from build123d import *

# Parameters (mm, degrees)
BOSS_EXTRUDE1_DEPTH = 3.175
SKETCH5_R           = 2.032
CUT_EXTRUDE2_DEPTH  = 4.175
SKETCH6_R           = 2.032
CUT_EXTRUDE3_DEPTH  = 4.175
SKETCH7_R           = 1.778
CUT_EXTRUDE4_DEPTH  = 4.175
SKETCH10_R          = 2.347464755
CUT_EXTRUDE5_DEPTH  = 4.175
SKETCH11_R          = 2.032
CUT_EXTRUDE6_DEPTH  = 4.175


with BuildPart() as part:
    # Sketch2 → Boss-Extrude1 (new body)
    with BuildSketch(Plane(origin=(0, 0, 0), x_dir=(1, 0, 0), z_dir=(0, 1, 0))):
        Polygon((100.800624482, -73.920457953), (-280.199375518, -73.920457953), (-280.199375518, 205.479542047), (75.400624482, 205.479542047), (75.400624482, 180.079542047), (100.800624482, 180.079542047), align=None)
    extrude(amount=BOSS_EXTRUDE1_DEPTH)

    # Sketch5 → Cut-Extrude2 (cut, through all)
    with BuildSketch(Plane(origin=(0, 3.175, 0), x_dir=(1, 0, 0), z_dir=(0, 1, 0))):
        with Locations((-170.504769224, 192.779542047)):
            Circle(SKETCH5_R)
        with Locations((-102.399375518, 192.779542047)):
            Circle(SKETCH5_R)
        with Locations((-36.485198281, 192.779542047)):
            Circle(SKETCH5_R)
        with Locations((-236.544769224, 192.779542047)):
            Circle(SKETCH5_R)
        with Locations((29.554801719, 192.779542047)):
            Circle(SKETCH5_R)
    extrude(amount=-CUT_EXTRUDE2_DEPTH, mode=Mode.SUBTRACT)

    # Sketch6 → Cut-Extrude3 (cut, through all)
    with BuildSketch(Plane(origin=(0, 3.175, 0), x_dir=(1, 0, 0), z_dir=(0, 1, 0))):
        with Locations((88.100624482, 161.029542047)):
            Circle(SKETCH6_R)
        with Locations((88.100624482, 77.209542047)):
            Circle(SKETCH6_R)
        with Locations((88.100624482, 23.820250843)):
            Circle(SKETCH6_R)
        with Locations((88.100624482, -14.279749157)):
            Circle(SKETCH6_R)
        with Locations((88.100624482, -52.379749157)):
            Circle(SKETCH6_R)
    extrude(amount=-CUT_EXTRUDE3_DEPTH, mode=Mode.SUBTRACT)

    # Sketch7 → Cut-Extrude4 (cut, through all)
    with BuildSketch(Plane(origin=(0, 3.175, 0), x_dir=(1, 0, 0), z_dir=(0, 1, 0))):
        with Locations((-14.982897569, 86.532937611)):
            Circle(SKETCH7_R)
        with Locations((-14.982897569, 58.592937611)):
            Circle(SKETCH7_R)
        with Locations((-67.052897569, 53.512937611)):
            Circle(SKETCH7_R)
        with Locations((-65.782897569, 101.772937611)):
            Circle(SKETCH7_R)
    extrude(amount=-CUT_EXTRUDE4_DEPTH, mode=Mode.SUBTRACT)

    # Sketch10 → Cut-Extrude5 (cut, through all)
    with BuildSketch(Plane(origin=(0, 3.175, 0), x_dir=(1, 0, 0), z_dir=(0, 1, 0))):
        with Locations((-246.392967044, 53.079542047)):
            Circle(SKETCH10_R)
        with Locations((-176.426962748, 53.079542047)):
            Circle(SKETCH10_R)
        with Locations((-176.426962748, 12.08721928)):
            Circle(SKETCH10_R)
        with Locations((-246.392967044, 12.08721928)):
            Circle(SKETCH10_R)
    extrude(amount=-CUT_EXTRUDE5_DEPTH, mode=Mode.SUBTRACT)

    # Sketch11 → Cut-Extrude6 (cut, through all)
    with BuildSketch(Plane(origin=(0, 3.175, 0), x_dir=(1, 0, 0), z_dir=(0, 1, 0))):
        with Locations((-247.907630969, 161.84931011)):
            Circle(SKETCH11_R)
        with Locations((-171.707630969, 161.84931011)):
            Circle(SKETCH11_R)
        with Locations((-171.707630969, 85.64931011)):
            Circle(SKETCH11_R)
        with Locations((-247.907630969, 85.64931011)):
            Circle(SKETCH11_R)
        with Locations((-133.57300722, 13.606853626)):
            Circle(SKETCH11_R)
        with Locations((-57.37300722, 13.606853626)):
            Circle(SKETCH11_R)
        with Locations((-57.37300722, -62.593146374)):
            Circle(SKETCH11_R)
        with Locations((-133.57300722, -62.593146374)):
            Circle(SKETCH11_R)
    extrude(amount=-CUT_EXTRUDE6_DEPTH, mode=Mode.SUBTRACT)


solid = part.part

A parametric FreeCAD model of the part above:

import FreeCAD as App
import Part
import Sketcher
Q = App.Units.Quantity

doc = App.newDocument("Part")
body = doc.addObject("PartDesign::Body", "Body")

sketch1 = doc.addObject("Sketcher::SketchObject", "Sketch")
body.addObject(sketch1)
sketch1.AttachmentSupport = (doc.XZ_Plane, [""])
sketch1.MapMode = "FlatFace"
sketch1.addGeometry([
    Part.LineSegment(App.Vector(-280.199376, 73.920458, 0), App.Vector(100.800624, 73.920458, 0)),
    Part.LineSegment(App.Vector(100.800624, 73.920458, 0), App.Vector(100.800624, -180.079542, 0)),
    Part.LineSegment(App.Vector(100.800624, -180.079542, 0), App.Vector(75.400624, -180.079542, 0)),
    Part.LineSegment(App.Vector(75.400624, -180.079542, 0), App.Vector(75.400624, -205.479542, 0)),
    Part.LineSegment(App.Vector(75.400624, -205.479542, 0), App.Vector(-280.199376, -205.479542, 0)),
    Part.LineSegment(App.Vector(-280.199376, -205.479542, 0), App.Vector(-280.199376, 73.920458, 0)),
], False)
sketch1.addConstraint([
    Sketcher.Constraint("Coincident", 0, 2, 1, 1),
    Sketcher.Constraint("Coincident", 1, 2, 2, 1),
    Sketcher.Constraint("Coincident", 2, 2, 3, 1),
    Sketcher.Constraint("Coincident", 3, 2, 4, 1),
    Sketcher.Constraint("Coincident", 4, 2, 5, 1),
    Sketcher.Constraint("Coincident", 5, 2, 0, 1),
    Sketcher.Constraint("Horizontal", 0),
    Sketcher.Constraint("Vertical", 1),
    Sketcher.Constraint("Horizontal", 2),
    Sketcher.Constraint("Vertical", 3),
    Sketcher.Constraint("Horizontal", 4),
    Sketcher.Constraint("Vertical", 5),
    Sketcher.Constraint("Equal", 2, 3),
    Sketcher.Constraint("DistanceX", 0, 1, 0, 2, Q("15 in")),
    Sketcher.Constraint("DistanceX", 2, 2, 2, 1, Q("1 in")),
    Sketcher.Constraint("DistanceY", 1, 2, 1, 1, Q("10 in")),
    Sketcher.Constraint("DistanceX", -1, 1, 0, 2, Q("100.800624 mm")),
    Sketcher.Constraint("DistanceY", -1, 1, 0, 2, Q("73.920458 mm")),
])
pad1 = doc.addObject("PartDesign::Pad", "Pad")
body.addObject(pad1)
pad1.Profile = sketch1
pad1.Length = Q("0.125 in")
pad1.Reversed = True

sketch2 = doc.addObject("Sketcher::SketchObject", "Sketch001")
body.addObject(sketch2)
sketch2.AttachmentSupport = (doc.XZ_Plane, [""])
sketch2.MapMode = "FlatFace"
sketch2.AttachmentOffset = App.Placement(App.Vector(0, 0, -0.125 * 25.4), App.Rotation())
sketch2.addGeometry([
    Part.Circle(App.Vector(-170.504769, -192.779542, 0), App.Vector(0, 0, 1), 2.032),
    Part.Circle(App.Vector(-102.399376, -192.779542, 0), App.Vector(0, 0, 1), 2.032),
    Part.Circle(App.Vector(-36.485198, -192.779542, 0), App.Vector(0, 0, 1), 2.032),
    Part.Circle(App.Vector(-236.544769, -192.779542, 0), App.Vector(0, 0, 1), 2.032),
    Part.Circle(App.Vector(29.554802, -192.779542, 0), App.Vector(0, 0, 1), 2.032),
], False)
sketch2.addConstraint([
    Sketcher.Constraint("Equal", 0, 1),
    Sketcher.Constraint("Equal", 1, 2),
    Sketcher.Constraint("Equal", 2, 3),
    Sketcher.Constraint("Equal", 3, 4),
    Sketcher.Constraint("Horizontal", 0, 3, 1, 3),
    Sketcher.Constraint("Horizontal", 1, 3, 2, 3),
    Sketcher.Constraint("Horizontal", 2, 3, 3, 3),
    Sketcher.Constraint("Horizontal", 3, 3, 4, 3),
    Sketcher.Constraint("Diameter", 0, Q("0.16 in")),
    Sketcher.Constraint("DistanceX", 3, 3, 0, 3, Q("2.6 in")),
    Sketcher.Constraint("DistanceX", 2, 3, 4, 3, Q("2.6 in")),
    Sketcher.Constraint("DistanceX", 2, 3, -1, 1, Q("36.485198 mm")),
    Sketcher.Constraint("DistanceX", 0, 3, -1, 1, Q("170.504769 mm")),
    Sketcher.Constraint("DistanceY", 0, 3, -1, 1, Q("192.779542 mm")),
    Sketcher.Constraint("DistanceX", 1, 3, -1, 1, Q("102.399376 mm")),
])
pocket1 = doc.addObject("PartDesign::Pocket", "Pocket")
body.addObject(pocket1)
pocket1.Profile = sketch2
pocket1.Type = "ThroughAll"
pocket1.Reversed = True

sketch3 = doc.addObject("Sketcher::SketchObject", "Sketch002")
body.addObject(sketch3)
sketch3.AttachmentSupport = (doc.XZ_Plane, [""])
sketch3.MapMode = "FlatFace"
sketch3.AttachmentOffset = App.Placement(App.Vector(0, 0, -0.125 * 25.4), App.Rotation())
sketch3.addGeometry([
    Part.Circle(App.Vector(88.100624, -161.029542, 0), App.Vector(0, 0, 1), 2.032),
    Part.Circle(App.Vector(88.100624, -77.209542, 0), App.Vector(0, 0, 1), 2.032),
    Part.Circle(App.Vector(88.100624, -23.820251, 0), App.Vector(0, 0, 1), 2.032),
    Part.Circle(App.Vector(88.100624, 14.279749, 0), App.Vector(0, 0, 1), 2.032),
    Part.Circle(App.Vector(88.100624, 52.379749, 0), App.Vector(0, 0, 1), 2.032),
], False)
sketch3.addConstraint([
    Sketcher.Constraint("Equal", 0, 1),
    Sketcher.Constraint("Equal", 1, 2),
    Sketcher.Constraint("Equal", 2, 3),
    Sketcher.Constraint("Equal", 3, 4),
    Sketcher.Constraint("Vertical", 0, 3, 1, 3),
    Sketcher.Constraint("Vertical", 1, 3, 2, 3),
    Sketcher.Constraint("Vertical", 2, 3, 3, 3),
    Sketcher.Constraint("Vertical", 3, 3, 4, 3),
    Sketcher.Constraint("Diameter", 0, Q("0.16 in")),
    Sketcher.Constraint("DistanceY", 2, 3, 4, 3, Q("3 in")),
    Sketcher.Constraint("DistanceY", 0, 3, 1, 3, Q("3.3 in")),
    Sketcher.Constraint("DistanceY", 2, 3, 3, 3, Q("1.5 in")),
    Sketcher.Constraint("DistanceY", 2, 3, -1, 1, Q("23.820251 mm")),
    Sketcher.Constraint("DistanceY", 1, 3, 2, 3, Q("53.389291 mm")),
    Sketcher.Constraint("DistanceX", -1, 1, 0, 3, Q("88.100624 mm")),
])
pocket2 = doc.addObject("PartDesign::Pocket", "Pocket001")
body.addObject(pocket2)
pocket2.Profile = sketch3
pocket2.Type = "ThroughAll"
pocket2.Reversed = True

sketch4 = doc.addObject("Sketcher::SketchObject", "Sketch003")
body.addObject(sketch4)
sketch4.AttachmentSupport = (doc.XZ_Plane, [""])
sketch4.MapMode = "FlatFace"
sketch4.AttachmentOffset = App.Placement(App.Vector(0, 0, -0.125 * 25.4), App.Rotation())
sketch4.addGeometry([
    Part.Circle(App.Vector(-14.982898, -86.532938, 0), App.Vector(0, 0, 1), 1.778),
    Part.Circle(App.Vector(-14.982898, -58.592938, 0), App.Vector(0, 0, 1), 1.778),
    Part.Circle(App.Vector(-67.052898, -53.512938, 0), App.Vector(0, 0, 1), 1.778),
    Part.Circle(App.Vector(-65.782898, -101.772938, 0), App.Vector(0, 0, 1), 1.778),
], False)
sketch4.addConstraint([
    Sketcher.Constraint("Equal", 0, 1),
    Sketcher.Constraint("Equal", 1, 2),
    Sketcher.Constraint("Equal", 2, 3),
    Sketcher.Constraint("Vertical", 0, 3, 1, 3),
    Sketcher.Constraint("Diameter", 0, Q("0.14 in")),
    Sketcher.Constraint("DistanceX", 3, 3, 0, 3, Q("2 in")),
    Sketcher.Constraint("DistanceY", 0, 3, 1, 3, Q("1.1 in")),
    Sketcher.Constraint("DistanceY", 1, 3, 2, 3, Q("0.2 in")),
    Sketcher.Constraint("DistanceY", 3, 3, 2, 3, Q("1.9 in")),
    Sketcher.Constraint("DistanceX", 2, 3, 1, 3, Q("2.05 in")),
    Sketcher.Constraint("DistanceX", 0, 3, -1, 1, Q("14.982898 mm")),
    Sketcher.Constraint("DistanceY", 0, 3, -1, 1, Q("86.532938 mm")),
])
pocket3 = doc.addObject("PartDesign::Pocket", "Pocket002")
body.addObject(pocket3)
pocket3.Profile = sketch4
pocket3.Type = "ThroughAll"
pocket3.Reversed = True

sketch5 = doc.addObject("Sketcher::SketchObject", "Sketch004")
body.addObject(sketch5)
sketch5.AttachmentSupport = (doc.XZ_Plane, [""])
sketch5.MapMode = "FlatFace"
sketch5.AttachmentOffset = App.Placement(App.Vector(0, 0, -0.125 * 25.4), App.Rotation())
sketch5.addGeometry([
    Part.Circle(App.Vector(-246.392967, -53.079542, 0), App.Vector(0, 0, 1), 2.347465),
    Part.Circle(App.Vector(-176.426963, -53.079542, 0), App.Vector(0, 0, 1), 2.347465),
    Part.Circle(App.Vector(-176.426963, -12.087219, 0), App.Vector(0, 0, 1), 2.347465),
    Part.Circle(App.Vector(-246.392967, -12.087219, 0), App.Vector(0, 0, 1), 2.347465),
], False)
sketch5.addConstraint([
    Sketcher.Constraint("Equal", 0, 1),
    Sketcher.Constraint("Equal", 1, 2),
    Sketcher.Constraint("Equal", 2, 3),
    Sketcher.Constraint("Horizontal", 0, 3, 1, 3),
    Sketcher.Constraint("Horizontal", 2, 3, 3, 3),
    Sketcher.Constraint("Vertical", 1, 3, 2, 3),
    Sketcher.Constraint("Vertical", 0, 3, 3, 3),
    Sketcher.Constraint("Diameter", 0, Q("4.69493 mm")),
    Sketcher.Constraint("DistanceY", 2, 3, -1, 1, Q("12.087219 mm")),
    Sketcher.Constraint("DistanceX", 0, 3, -1, 1, Q("246.392967 mm")),
    Sketcher.Constraint("DistanceY", 0, 3, -1, 1, Q("53.079542 mm")),
    Sketcher.Constraint("DistanceX", 1, 3, -1, 1, Q("176.426963 mm")),
])
pocket4 = doc.addObject("PartDesign::Pocket", "Pocket003")
body.addObject(pocket4)
pocket4.Profile = sketch5
pocket4.Type = "ThroughAll"
pocket4.Reversed = True

sketch6 = doc.addObject("Sketcher::SketchObject", "Sketch005")
body.addObject(sketch6)
sketch6.AttachmentSupport = (doc.XZ_Plane, [""])
sketch6.MapMode = "FlatFace"
sketch6.AttachmentOffset = App.Placement(App.Vector(0, 0, -0.125 * 25.4), App.Rotation())
sketch6.addGeometry([
    Part.Circle(App.Vector(-247.907631, -161.84931, 0), App.Vector(0, 0, 1), 2.032),
    Part.Circle(App.Vector(-171.707631, -161.84931, 0), App.Vector(0, 0, 1), 2.032),
    Part.Circle(App.Vector(-171.707631, -85.64931, 0), App.Vector(0, 0, 1), 2.032),
    Part.Circle(App.Vector(-247.907631, -85.64931, 0), App.Vector(0, 0, 1), 2.032),
    Part.Circle(App.Vector(-133.573007, -13.606854, 0), App.Vector(0, 0, 1), 2.032),
    Part.Circle(App.Vector(-57.373007, -13.606854, 0), App.Vector(0, 0, 1), 2.032),
    Part.Circle(App.Vector(-57.373007, 62.593146, 0), App.Vector(0, 0, 1), 2.032),
    Part.Circle(App.Vector(-133.573007, 62.593146, 0), App.Vector(0, 0, 1), 2.032),
], False)
sketch6.addConstraint([
    Sketcher.Constraint("Equal", 0, 1),
    Sketcher.Constraint("Equal", 1, 2),
    Sketcher.Constraint("Equal", 2, 3),
    Sketcher.Constraint("Equal", 3, 4),
    Sketcher.Constraint("Equal", 4, 5),
    Sketcher.Constraint("Equal", 5, 6),
    Sketcher.Constraint("Equal", 6, 7),
    Sketcher.Constraint("Horizontal", 0, 3, 1, 3),
    Sketcher.Constraint("Horizontal", 2, 3, 3, 3),
    Sketcher.Constraint("Horizontal", 4, 3, 5, 3),
    Sketcher.Constraint("Horizontal", 6, 3, 7, 3),
    Sketcher.Constraint("Vertical", 1, 3, 2, 3),
    Sketcher.Constraint("Vertical", 0, 3, 3, 3),
    Sketcher.Constraint("Vertical", 5, 3, 6, 3),
    Sketcher.Constraint("Vertical", 4, 3, 7, 3),
    Sketcher.Constraint("Diameter", 0, Q("0.16 in")),
    Sketcher.Constraint("DistanceX", 0, 3, 1, 3, Q("3 in")),
    Sketcher.Constraint("DistanceY", 1, 3, 2, 3, Q("3 in")),
    Sketcher.Constraint("DistanceX", 4, 3, 5, 3, Q("3 in")),
    Sketcher.Constraint("DistanceY", 5, 3, 6, 3, Q("3 in")),
    Sketcher.Constraint("DistanceX", 0, 3, -1, 1, Q("247.907631 mm")),
    Sketcher.Constraint("DistanceY", 0, 3, -1, 1, Q("161.84931 mm")),
    Sketcher.Constraint("DistanceX", 4, 3, -1, 1, Q("133.573007 mm")),
    Sketcher.Constraint("DistanceY", 4, 3, -1, 1, Q("13.606854 mm")),
])
pocket5 = doc.addObject("PartDesign::Pocket", "Pocket004")
body.addObject(pocket5)
pocket5.Profile = sketch6
pocket5.Type = "ThroughAll"
pocket5.Reversed = True

doc.recompute()
